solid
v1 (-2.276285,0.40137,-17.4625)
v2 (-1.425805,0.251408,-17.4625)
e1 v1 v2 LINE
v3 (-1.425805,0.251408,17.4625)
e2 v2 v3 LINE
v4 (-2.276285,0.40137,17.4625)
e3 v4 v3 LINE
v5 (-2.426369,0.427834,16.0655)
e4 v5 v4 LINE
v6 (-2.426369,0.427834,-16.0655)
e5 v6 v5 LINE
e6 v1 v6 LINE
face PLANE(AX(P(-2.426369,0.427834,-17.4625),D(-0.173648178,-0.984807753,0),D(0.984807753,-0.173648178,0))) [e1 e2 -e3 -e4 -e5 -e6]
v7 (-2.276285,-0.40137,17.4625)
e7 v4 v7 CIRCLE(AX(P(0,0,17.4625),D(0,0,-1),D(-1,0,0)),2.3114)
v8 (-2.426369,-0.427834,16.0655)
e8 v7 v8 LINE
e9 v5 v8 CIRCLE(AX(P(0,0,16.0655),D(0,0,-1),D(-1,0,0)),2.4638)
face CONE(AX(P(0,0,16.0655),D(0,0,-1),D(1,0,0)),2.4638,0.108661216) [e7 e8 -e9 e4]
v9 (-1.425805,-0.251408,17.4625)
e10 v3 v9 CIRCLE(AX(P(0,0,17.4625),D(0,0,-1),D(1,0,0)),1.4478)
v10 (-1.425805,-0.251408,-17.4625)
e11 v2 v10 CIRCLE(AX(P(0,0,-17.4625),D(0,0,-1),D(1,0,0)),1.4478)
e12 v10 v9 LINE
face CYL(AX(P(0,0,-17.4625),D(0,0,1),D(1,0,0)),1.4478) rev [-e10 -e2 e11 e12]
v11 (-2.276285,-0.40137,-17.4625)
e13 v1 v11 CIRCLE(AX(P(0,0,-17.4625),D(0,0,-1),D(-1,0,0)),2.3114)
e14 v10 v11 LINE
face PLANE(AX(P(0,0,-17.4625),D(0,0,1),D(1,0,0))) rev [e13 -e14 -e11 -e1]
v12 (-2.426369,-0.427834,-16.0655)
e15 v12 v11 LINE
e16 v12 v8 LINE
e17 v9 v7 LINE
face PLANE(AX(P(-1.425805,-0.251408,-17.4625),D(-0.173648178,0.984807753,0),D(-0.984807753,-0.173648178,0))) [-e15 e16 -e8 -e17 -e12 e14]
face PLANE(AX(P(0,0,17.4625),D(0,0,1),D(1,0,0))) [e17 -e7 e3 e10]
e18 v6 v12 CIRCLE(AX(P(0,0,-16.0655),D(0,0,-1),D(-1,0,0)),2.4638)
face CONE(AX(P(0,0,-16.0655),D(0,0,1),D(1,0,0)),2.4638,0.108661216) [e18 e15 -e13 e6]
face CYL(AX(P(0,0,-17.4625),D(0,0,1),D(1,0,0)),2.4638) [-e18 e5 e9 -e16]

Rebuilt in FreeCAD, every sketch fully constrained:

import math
import FreeCAD as App
import Part
import Sketcher
from FreeCAD import Vector
Q = App.Units.Quantity


def add_polygon(sketch, points):
    """Adds a closed chain of lines whose ends are joined by coincident constraints."""
    first, n = sketch.GeometryCount, len(points)
    for a, b in zip(points, points[1:] + points[:1]):
        sketch.addGeometry(Part.LineSegment(App.Vector(*a, 0), App.Vector(*b, 0)), False)
    for i in range(n):
        sketch.addConstraint(Sketcher.Constraint("Coincident", first + i, 2, first + (i + 1) % n, 1))

doc = App.newDocument("Part")
params = doc.addObject("Spreadsheet::Sheet", "Params")
for row, (alias, value) in enumerate([
    ("sketch1_radius", "0.097 in"),
    ("sketch1_radius2", "0.057 in"),
    ("pad1_length", "0.6875 in"),
    ("pad1_length2", "0.6875 in"),
    ("sketch2_width", "0.006 in"),
    ("sketch2_height", "0.055 in"),
    ("groove_angle", "360 deg"),
], start=1):
    params.set(f"A{row}", alias)
    params.set(f"B{row}", "=" + value)
    params.setAlias(f"B{row}", alias)

body = doc.addObject("PartDesign::Body", "Body")

# Sketch on XY plane
sketch1 = body.newObject("Sketcher::SketchObject", "Sketch")
sketch1.AttachmentSupport = (doc.getObject("XY_Plane"), [""])
sketch1.MapMode = "FlatFace"
sketch1.addGeometry([
    Part.LineSegment(Vector(-1.4, -0.3, 0), Vector(-2.4, -0.4, 0)),
    Part.ArcOfCircle(Part.Circle(Vector(0, 0, 0), Vector(0, 0, 1), 2.5), math.radians(-170), math.radians(170)),
    Part.LineSegment(Vector(-2.4, 0.4, 0), Vector(-1.4, 0.3, 0)),
    Part.ArcOfCircle(Part.Circle(Vector(0, 0, 0), Vector(0, 0, 1), 1.4), math.radians(-170), math.radians(170)),
], False)
sketch1.addConstraint([
    Sketcher.Constraint("Coincident", 0, 2, 1, 1),
    Sketcher.Constraint("Coincident", 1, 2, 2, 1),
    Sketcher.Constraint("Coincident", 2, 2, 3, 2),
    Sketcher.Constraint("Coincident", 3, 1, 0, 1),
    Sketcher.Constraint("Coincident", 1, 3, -1, 1),
    Sketcher.Constraint("Coincident", 3, 3, -1, 1),
    Sketcher.Constraint("Vertical", 0, 2, 1, 2),
    Sketcher.Constraint("Vertical", 2, 2, 3, 1),
    Sketcher.Constraint("Angle", 0, Q("-170 deg")),
    Sketcher.Constraint("Radius", 1, Q("0.097 in")),
    Sketcher.Constraint("Radius", 3, Q("0.057 in")),
    Sketcher.Constraint("DistanceX", 0, 2, -1, 1, Q("2.426369 mm")),
])
sketch1.setExpression("Constraints[9]", "Params.sketch1_radius")
sketch1.setExpression("Constraints[10]", "Params.sketch1_radius2")
pad1 = body.newObject("PartDesign::Pad", "Pad")
pad1.Profile = sketch1
pad1.Type = "TwoLengths"
pad1.setExpression("Length", "Params.pad1_length")
pad1.setExpression("Length2", "Params.pad1_length2")

# Sketch on YZ plane
sketch2 = body.newObject("Sketcher::SketchObject", "Sketch001")
sketch2.AttachmentSupport = (doc.getObject("YZ_Plane"), [""])
sketch2.MapMode = "FlatFace"
add_polygon(sketch2, [(2.46, -16.07), (2.31, -17.46), (2.46, -17.46)])  # lines 0-2
sketch2.addConstraint([
    Sketcher.Constraint("Horizontal", 1),
    Sketcher.Constraint("Vertical", 2),
    Sketcher.Constraint("DistanceX", 1, 1, 1, 2, Q("0.006 in")),
    Sketcher.Constraint("DistanceY", 2, 1, 2, 2, Q("0.055 in")),
    Sketcher.Constraint("DistanceX", -1, 1, 0, 2, Q("0.091 in")),
    Sketcher.Constraint("DistanceY", 0, 2, -1, 1, Q("0.6875 in")),
])
sketch2.setExpression("Constraints[5]", "Params.sketch2_width")
sketch2.setExpression("Constraints[6]", "Params.sketch2_height")
groove = body.newObject("PartDesign::Groove", "Groove")
groove.Profile = sketch2
groove.ReferenceAxis = (sketch2, ["V_Axis"])
groove.setExpression("Angle", "Params.groove_angle")
doc.recompute()

mirrored = body.newObject("PartDesign::Mirrored", "Mirrored")
mirrored.Originals = [groove]
mirrored.MirrorPlane = (doc.getObject("XY_Plane"), [""])
body.Tip = mirrored

doc.recompute()
